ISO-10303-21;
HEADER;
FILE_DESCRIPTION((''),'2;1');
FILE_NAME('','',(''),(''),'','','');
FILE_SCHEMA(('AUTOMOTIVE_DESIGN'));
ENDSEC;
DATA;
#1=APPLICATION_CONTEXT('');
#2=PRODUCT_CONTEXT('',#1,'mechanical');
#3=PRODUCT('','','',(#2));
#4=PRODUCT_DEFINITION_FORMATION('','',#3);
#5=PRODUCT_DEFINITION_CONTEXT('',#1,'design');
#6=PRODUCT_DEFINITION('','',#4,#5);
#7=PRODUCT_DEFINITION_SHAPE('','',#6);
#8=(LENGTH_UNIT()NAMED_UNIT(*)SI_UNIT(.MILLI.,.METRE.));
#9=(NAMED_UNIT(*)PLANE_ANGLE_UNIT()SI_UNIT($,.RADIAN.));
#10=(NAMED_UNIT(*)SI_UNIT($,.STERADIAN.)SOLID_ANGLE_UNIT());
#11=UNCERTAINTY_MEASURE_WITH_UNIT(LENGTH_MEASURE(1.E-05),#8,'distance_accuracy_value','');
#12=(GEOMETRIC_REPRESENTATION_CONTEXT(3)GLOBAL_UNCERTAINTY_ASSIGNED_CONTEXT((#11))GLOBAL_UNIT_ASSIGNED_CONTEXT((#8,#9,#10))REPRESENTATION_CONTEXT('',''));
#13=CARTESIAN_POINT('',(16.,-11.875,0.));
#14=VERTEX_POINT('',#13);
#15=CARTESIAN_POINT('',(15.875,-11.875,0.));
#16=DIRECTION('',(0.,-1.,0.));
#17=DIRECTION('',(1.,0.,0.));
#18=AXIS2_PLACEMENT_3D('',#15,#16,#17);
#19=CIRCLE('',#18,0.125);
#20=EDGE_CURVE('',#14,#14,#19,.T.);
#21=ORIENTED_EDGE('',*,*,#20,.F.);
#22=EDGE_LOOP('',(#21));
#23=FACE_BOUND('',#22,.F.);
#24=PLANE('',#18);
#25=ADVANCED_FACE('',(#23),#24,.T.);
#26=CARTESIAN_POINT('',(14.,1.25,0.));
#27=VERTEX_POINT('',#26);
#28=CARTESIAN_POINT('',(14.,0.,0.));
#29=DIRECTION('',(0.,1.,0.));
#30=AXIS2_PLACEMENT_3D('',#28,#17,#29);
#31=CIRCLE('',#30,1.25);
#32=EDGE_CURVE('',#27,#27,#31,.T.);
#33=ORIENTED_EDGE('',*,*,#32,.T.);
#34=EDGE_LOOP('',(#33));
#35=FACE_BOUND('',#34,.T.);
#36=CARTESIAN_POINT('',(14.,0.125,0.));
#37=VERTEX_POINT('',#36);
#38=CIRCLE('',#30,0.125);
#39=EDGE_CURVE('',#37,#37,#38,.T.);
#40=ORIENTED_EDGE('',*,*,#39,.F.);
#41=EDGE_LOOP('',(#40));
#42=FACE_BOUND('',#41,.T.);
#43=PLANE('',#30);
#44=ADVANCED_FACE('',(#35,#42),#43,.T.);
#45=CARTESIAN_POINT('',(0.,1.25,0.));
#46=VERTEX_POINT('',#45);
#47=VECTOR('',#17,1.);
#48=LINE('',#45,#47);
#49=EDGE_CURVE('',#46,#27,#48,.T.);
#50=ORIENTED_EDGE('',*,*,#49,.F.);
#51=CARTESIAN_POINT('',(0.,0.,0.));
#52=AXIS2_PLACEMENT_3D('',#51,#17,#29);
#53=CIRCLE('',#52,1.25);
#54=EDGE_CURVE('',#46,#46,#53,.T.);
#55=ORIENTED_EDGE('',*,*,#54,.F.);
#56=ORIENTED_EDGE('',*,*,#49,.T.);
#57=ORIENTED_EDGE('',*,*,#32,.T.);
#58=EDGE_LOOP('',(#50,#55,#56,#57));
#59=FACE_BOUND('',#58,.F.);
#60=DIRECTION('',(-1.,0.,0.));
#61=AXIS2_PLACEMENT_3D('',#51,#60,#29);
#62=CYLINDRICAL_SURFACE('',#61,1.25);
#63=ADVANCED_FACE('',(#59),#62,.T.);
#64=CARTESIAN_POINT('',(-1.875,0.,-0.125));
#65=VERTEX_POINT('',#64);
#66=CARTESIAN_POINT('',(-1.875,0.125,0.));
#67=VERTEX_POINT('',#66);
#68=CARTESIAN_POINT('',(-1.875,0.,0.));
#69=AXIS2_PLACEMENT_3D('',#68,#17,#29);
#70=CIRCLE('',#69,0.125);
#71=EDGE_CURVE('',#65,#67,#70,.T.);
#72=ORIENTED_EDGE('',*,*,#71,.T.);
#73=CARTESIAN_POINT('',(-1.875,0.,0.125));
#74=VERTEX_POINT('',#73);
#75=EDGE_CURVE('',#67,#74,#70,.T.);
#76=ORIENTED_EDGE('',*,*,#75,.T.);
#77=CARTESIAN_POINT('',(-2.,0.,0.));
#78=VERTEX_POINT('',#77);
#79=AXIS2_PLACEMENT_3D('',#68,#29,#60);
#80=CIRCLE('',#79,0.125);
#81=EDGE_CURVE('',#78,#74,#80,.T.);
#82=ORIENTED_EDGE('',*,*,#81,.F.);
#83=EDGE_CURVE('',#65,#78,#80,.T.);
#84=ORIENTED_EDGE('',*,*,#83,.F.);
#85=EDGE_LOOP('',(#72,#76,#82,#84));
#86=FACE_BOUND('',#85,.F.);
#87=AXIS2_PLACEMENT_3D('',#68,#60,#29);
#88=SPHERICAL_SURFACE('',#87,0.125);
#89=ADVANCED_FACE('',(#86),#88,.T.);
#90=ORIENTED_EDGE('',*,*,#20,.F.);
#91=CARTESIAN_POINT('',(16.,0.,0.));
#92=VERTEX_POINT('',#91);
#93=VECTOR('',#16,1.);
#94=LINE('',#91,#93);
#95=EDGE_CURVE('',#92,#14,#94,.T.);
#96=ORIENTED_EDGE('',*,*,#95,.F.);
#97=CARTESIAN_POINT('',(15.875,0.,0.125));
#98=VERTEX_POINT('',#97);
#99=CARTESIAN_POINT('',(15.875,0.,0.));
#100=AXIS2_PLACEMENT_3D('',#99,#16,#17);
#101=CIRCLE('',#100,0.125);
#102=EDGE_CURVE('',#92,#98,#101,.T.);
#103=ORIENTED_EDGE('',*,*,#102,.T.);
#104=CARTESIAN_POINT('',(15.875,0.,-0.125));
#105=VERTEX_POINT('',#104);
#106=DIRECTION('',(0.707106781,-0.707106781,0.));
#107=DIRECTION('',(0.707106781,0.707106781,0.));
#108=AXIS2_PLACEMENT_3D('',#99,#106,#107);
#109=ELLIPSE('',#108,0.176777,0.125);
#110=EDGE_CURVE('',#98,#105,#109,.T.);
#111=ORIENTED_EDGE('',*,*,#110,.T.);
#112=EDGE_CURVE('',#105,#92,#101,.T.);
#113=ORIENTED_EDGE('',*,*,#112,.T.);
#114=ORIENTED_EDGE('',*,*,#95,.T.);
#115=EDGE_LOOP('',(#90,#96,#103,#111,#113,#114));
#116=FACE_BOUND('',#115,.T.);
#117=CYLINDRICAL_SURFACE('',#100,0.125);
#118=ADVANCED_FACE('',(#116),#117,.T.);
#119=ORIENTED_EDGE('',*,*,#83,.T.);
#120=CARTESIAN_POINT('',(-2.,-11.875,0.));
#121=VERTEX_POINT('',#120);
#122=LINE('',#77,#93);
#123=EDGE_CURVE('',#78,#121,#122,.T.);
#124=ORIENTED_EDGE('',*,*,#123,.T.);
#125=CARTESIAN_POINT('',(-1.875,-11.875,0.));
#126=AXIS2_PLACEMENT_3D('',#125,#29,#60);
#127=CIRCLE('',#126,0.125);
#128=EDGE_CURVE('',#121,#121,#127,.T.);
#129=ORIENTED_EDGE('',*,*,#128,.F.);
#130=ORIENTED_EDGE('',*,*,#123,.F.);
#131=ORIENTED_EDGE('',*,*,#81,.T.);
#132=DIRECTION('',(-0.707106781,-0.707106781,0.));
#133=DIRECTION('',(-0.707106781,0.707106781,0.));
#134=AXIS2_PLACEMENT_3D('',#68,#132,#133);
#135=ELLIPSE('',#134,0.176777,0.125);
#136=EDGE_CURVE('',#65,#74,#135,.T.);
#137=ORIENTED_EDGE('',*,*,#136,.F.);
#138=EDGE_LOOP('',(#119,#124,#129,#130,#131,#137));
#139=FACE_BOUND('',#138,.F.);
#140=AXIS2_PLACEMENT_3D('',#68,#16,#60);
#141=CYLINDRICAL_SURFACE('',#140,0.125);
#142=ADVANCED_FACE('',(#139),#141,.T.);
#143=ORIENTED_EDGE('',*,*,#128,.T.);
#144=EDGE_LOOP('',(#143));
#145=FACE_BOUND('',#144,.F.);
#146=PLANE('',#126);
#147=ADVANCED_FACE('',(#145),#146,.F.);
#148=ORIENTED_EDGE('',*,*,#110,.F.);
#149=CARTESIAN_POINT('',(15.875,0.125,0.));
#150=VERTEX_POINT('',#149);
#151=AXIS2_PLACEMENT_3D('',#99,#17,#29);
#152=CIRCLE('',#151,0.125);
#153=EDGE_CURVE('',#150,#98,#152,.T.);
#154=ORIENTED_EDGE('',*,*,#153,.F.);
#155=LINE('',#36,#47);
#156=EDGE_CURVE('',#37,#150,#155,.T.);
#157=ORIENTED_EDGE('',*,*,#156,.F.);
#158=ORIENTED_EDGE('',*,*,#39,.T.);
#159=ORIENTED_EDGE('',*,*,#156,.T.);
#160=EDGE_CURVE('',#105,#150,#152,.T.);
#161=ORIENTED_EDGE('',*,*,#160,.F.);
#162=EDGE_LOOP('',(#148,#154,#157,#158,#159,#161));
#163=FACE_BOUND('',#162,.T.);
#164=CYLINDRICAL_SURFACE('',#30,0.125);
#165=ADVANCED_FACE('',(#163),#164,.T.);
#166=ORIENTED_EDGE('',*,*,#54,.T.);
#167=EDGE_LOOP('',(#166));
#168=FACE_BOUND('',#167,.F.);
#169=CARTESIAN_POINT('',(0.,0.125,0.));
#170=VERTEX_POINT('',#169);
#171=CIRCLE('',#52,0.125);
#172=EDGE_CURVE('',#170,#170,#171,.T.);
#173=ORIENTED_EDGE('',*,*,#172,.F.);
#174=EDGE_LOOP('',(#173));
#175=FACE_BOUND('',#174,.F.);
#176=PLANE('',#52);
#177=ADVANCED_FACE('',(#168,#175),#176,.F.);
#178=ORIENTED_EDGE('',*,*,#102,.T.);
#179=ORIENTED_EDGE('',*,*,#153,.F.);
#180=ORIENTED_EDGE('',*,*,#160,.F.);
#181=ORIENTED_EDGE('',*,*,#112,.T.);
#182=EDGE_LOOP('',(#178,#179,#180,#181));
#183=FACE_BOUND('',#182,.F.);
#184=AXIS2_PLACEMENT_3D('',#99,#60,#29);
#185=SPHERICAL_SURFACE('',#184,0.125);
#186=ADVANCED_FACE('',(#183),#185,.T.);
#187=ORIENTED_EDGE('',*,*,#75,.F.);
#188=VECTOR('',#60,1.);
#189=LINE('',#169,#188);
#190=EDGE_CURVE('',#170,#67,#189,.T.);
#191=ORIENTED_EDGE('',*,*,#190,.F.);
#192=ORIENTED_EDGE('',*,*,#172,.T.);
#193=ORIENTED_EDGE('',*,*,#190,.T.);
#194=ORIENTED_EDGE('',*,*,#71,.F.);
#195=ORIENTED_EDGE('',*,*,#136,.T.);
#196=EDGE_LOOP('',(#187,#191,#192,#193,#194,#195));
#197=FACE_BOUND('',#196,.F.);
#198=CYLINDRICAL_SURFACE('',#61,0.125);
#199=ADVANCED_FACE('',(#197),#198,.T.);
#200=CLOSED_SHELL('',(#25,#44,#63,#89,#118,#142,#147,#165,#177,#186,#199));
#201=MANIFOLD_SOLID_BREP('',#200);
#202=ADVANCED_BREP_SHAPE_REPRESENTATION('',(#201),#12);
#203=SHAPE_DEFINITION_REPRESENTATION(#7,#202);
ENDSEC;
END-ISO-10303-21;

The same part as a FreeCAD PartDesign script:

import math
import FreeCAD as App
import Part
import Sketcher
from FreeCAD import Vector
Q = App.Units.Quantity


def add_polygon(sketch, points):
    """Adds a closed chain of lines whose ends are joined by coincident constraints."""
    first, n = sketch.GeometryCount, len(points)
    for a, b in zip(points, points[1:] + points[:1]):
        sketch.addGeometry(Part.LineSegment(App.Vector(*a, 0), App.Vector(*b, 0)), False)
    for i in range(n):
        sketch.addConstraint(Sketcher.Constraint("Coincident", first + i, 2, first + (i + 1) % n, 1))

doc = App.newDocument("Part")
body = doc.addObject("PartDesign::Body", "Body")

sketch1 = body.newObject("Sketcher::SketchObject", "Sketch")
sketch1.AttachmentSupport = (doc.getObject("YZ_Plane"), [""])
sketch1.MapMode = "FlatFace"
sketch1.addGeometry(Part.Circle(Vector(0, 0, 0), Vector(0, 0, 1), 1.2), False)
sketch1.addConstraint([
    Sketcher.Constraint("Coincident", 0, 3, -1, 1),
    Sketcher.Constraint("Diameter", 0, Q("2.5 mm")),
])
pad1 = body.newObject("PartDesign::Pad", "Pad")
pad1.Profile = sketch1
pad1.Length = 14

sketch2 = body.newObject("Sketcher::SketchObject", "Sketch001")
sketch2.AttachmentSupport = (doc.getObject("XY_Plane"), [""])
sketch2.MapMode = "FlatFace"
sketch2.addGeometry([
    Part.LineSegment(Vector(14, 0.12, 0), Vector(14, 0, 0)),
    Part.LineSegment(Vector(14, 0, 0), Vector(16, 0, 0)),
    Part.ArcOfCircle(Part.Circle(Vector(15.88, 0, 0), Vector(0, 0, 1), 0.12), math.radians(0), math.radians(90)),
    Part.LineSegment(Vector(15.88, 0.12, 0), Vector(14, 0.12, 0)),
], False)
sketch2.addConstraint([
    Sketcher.Constraint("Coincident", 0, 2, 1, 1),
    Sketcher.Constraint("Coincident", 1, 2, 2, 1),
    Sketcher.Constraint("Tangent", 2, 2, 3, 1),
    Sketcher.Constraint("Coincident", 3, 2, 0, 1),
    Sketcher.Constraint("Vertical", 0),
    Sketcher.Constraint("Horizontal", 1),
    Sketcher.Constraint("Horizontal", 3),
    Sketcher.Constraint("PointOnObject", 2, 3, -1),
    Sketcher.Constraint("PointOnObject", 0, 2, -1),
    Sketcher.Constraint("DistanceX", 1, 1, 1, 2, Q("2 mm")),
    Sketcher.Constraint("Radius", 2, Q("0.125 mm")),
    Sketcher.Constraint("DistanceX", -1, 1, 0, 2, Q("14 mm")),
])
revolution = body.newObject("PartDesign::Revolution", "Revolution")
revolution.Profile = sketch2
revolution.ReferenceAxis = (sketch2, ["H_Axis"])
revolution.Angle = 360

sketch3 = body.newObject("Sketcher::SketchObject", "Sketch002")
sketch3.AttachmentSupport = (doc.getObject("XY_Plane"), [""])
sketch3.MapMode = "FlatFace"
add_polygon(sketch3, [(16, 0), (15.88, 0), (15.88, -11.88), (16, -11.88)])
sketch3.addGeometry(Part.LineSegment(Vector(15.88, 0, 0), Vector(15.88, -11.88, 0)), True)
sketch3.addConstraint([
    Sketcher.Constraint("Horizontal", 0),
    Sketcher.Constraint("Vertical", 1),
    Sketcher.Constraint("Horizontal", 2),
    Sketcher.Constraint("Vertical", 3),
    Sketcher.Constraint("Vertical", 4),
    Sketcher.Constraint("Coincident", 4, 1, 0, 2),
    Sketcher.Constraint("PointOnObject", 0, 2, -1),
    Sketcher.Constraint("Horizontal", 2, 2, 4, 2),
    Sketcher.Constraint("DistanceX", 0, 2, 0, 1, Q("0.125 mm")),
    Sketcher.Constraint("DistanceX", -1, 1, 2, 2, Q("16 mm")),
    Sketcher.Constraint("DistanceY", 1, 2, 1, 1, Q("11.875 mm")),
])
revolution2 = body.newObject("PartDesign::Revolution", "Revolution001")
revolution2.Profile = sketch3
revolution2.ReferenceAxis = (sketch3, ["Axis0"])
revolution2.Angle = 360

sketch4 = body.newObject("Sketcher::SketchObject", "Sketch003")
sketch4.AttachmentSupport = (doc.getObject("XY_Plane"), [""])
sketch4.MapMode = "FlatFace"
sketch4.addGeometry([
    Part.LineSegment(Vector(-2, 0, 0), Vector(0, 0, 0)),
    Part.LineSegment(Vector(0, 0, 0), Vector(0, 0.12, 0)),
    Part.LineSegment(Vector(0, 0.12, 0), Vector(-1.88, 0.12, 0)),
    Part.ArcOfCircle(Part.Circle(Vector(-1.88, 0, 0), Vector(0, 0, 1), 0.12), math.radians(90), math.radians(180)),
], False)
sketch4.addConstraint([
    Sketcher.Constraint("Coincident", 0, 2, 1, 1),
    Sketcher.Constraint("Coincident", 1, 2, 2, 1),
    Sketcher.Constraint("Tangent", 2, 2, 3, 1),
    Sketcher.Constraint("Coincident", 3, 2, 0, 1),
    Sketcher.Constraint("Horizontal", 0),
    Sketcher.Constraint("Vertical", 1),
    Sketcher.Constraint("Horizontal", 2),
    Sketcher.Constraint("Coincident", 0, 2, -1, 1),
    Sketcher.Constraint("PointOnObject", 3, 3, -1),
    Sketcher.Constraint("DistanceX", 0, 1, 0, 2, Q("2 mm")),
    Sketcher.Constraint("Radius", 3, Q("0.125 mm")),
])
revolution3 = body.newObject("PartDesign::Revolution", "Revolution002")
revolution3.Profile = sketch4
revolution3.ReferenceAxis = (sketch4, ["H_Axis"])
revolution3.Angle = 360

sketch5 = body.newObject("Sketcher::SketchObject", "Sketch004")
sketch5.AttachmentSupport = (doc.getObject("XY_Plane"), [""])
sketch5.MapMode = "FlatFace"
add_polygon(sketch5, [(-1.88, -11.88), (-1.88, 0), (-2, 0), (-2, -11.88)])
sketch5.addGeometry(Part.LineSegment(Vector(-1.88, -11.88, 0), Vector(-1.88, 0, 0)), True)
sketch5.addConstraint([
    Sketcher.Constraint("Vertical", 0),
    Sketcher.Constraint("Horizontal", 1),
    Sketcher.Constraint("Vertical", 2),
    Sketcher.Constraint("Horizontal", 3),
    Sketcher.Constraint("Vertical", 4),
    Sketcher.Constraint("Coincident", 4, 1, 3, 2),
    Sketcher.Constraint("PointOnObject", 0, 2, -1),
    Sketcher.Constraint("PointOnObject", 4, 2, -1),
    Sketcher.Constraint("DistanceX", 1, 2, -1, 1, Q("2 mm")),
    Sketcher.Constraint("DistanceX", 1, 2, 1, 1, Q("0.125 mm")),
    Sketcher.Constraint("DistanceY", 0, 1, 0, 2, Q("11.875 mm")),
])
revolution4 = body.newObject("PartDesign::Revolution", "Revolution003")
revolution4.Profile = sketch5
revolution4.ReferenceAxis = (sketch5, ["Axis0"])
revolution4.Angle = 360

doc.recompute()
